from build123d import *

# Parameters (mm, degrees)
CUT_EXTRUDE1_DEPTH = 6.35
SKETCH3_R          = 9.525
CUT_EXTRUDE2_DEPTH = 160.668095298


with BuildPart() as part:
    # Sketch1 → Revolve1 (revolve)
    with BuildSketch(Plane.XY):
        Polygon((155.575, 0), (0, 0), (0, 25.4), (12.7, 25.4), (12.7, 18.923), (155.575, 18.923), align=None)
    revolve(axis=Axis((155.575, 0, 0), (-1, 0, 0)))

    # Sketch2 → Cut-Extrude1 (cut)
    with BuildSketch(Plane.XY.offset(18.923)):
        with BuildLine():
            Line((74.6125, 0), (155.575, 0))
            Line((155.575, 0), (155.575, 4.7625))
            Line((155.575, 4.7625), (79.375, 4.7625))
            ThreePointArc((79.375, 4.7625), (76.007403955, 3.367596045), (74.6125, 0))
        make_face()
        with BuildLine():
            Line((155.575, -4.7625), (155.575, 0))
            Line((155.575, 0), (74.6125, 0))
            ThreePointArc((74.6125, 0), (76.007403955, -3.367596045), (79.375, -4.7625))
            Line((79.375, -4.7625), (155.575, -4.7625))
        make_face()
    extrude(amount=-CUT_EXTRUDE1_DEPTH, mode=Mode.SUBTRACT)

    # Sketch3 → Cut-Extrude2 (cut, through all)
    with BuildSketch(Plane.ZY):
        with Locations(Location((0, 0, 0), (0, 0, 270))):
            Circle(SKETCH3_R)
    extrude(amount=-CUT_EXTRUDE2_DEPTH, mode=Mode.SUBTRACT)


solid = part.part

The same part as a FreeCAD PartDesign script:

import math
import FreeCAD as App
import Part
import Sketcher

V = App.Vector
Q = App.Units.Quantity


def add_polygon(sketch, points):
    """Adds a closed chain of lines whose ends are joined by coincident constraints."""
    first, n = sketch.GeometryCount, len(points)
    for a, b in zip(points, points[1:] + points[:1]):
        sketch.addGeometry(Part.LineSegment(App.Vector(*a, 0), App.Vector(*b, 0)), False)
    for i in range(n):
        sketch.addConstraint(Sketcher.Constraint("Coincident", first + i, 2, first + (i + 1) % n, 1))

doc = App.newDocument("Part")
body = doc.addObject("PartDesign::Body", "Body")

# Sketch on XY plane
sketch1 = body.newObject("Sketcher::SketchObject", "Sketch")
sketch1.AttachmentSupport = (doc.getObject("XY_Plane"), [""])
sketch1.MapMode = "FlatFace"
add_polygon(sketch1, [(0, 0), (156, 0), (156, 19), (13, 19), (13, 25), (0, 25)])  # lines 0-5
sketch1.addConstraint([
    Sketcher.Constraint("Horizontal", 0),
    Sketcher.Constraint("Vertical", 1),
    Sketcher.Constraint("Horizontal", 2),
    Sketcher.Constraint("Vertical", 3),
    Sketcher.Constraint("Horizontal", 4),
    Sketcher.Constraint("Vertical", 5),
    Sketcher.Constraint("Coincident", 5, 2, -1, 1),
    Sketcher.Constraint("DistanceY", 5, 2, 5, 1, Q("1 in")),
    Sketcher.Constraint("DistanceX", 4, 2, 4, 1, Q("0.5 in")),
    Sketcher.Constraint("DistanceX", 0, 1, 0, 2, Q("6.125 in")),
    Sketcher.Constraint("DistanceY", 1, 1, 1, 2, Q("0.745 in")),
])
revolution = body.newObject("PartDesign::Revolution", "Revolution")
revolution.Profile = sketch1
revolution.ReferenceAxis = (sketch1, ["H_Axis"])
revolution.Angle = 360

# Sketch on XY plane
sketch2 = body.newObject("Sketcher::SketchObject", "Sketch001")
sketch2.AttachmentSupport = (doc.getObject("XY_Plane"), [""])
sketch2.MapMode = "FlatFace"
sketch2.AttachmentOffset = App.Placement(V(0, 0, 0.745 * 25.4), App.Rotation())
sketch2.addGeometry([
    Part.LineSegment(V(155.6, 4.8, 0), V(79.4, 4.8, 0)),  # 0
    Part.ArcOfCircle(Part.Circle(V(79.4, 0, 0), V(0, 0, 1), 4.8), math.radians(90), math.radians(180)),  # 1
    Part.ArcOfCircle(Part.Circle(V(79.4, 0, 0), V(0, 0, 1), 4.8), math.radians(-180), math.radians(-90)),  # 2
    Part.LineSegment(V(79.4, -4.8, 0), V(155.6, -4.8, 0)),  # 3
    Part.LineSegment(V(155.6, -4.8, 0), V(155.6, 4.8, 0)),  # 4
], False)
sketch2.addConstraint([
    Sketcher.Constraint("Tangent", 0, 2, 1, 1),
    Sketcher.Constraint("Tangent", 1, 2, 2, 1),
    Sketcher.Constraint("Tangent", 2, 2, 3, 1),
    Sketcher.Constraint("Coincident", 3, 2, 4, 1),
    Sketcher.Constraint("Coincident", 4, 2, 0, 1),
    Sketcher.Constraint("Horizontal", 0),
    Sketcher.Constraint("Horizontal", 3),
    Sketcher.Constraint("Vertical", 4),
    Sketcher.Constraint("Equal", 1, 2),
    Sketcher.Constraint("PointOnObject", 1, 3, -1),
    Sketcher.Constraint("PointOnObject", 1, 2, -1),
    Sketcher.Constraint("DistanceX", 0, 2, 0, 1, Q("3 in")),
    Sketcher.Constraint("Radius", 1, Q("0.1875 in")),
    Sketcher.Constraint("DistanceX", -1, 1, 1, 3, Q("3.125 in")),
])
pocket1 = body.newObject("PartDesign::Pocket", "Pocket")
pocket1.Profile = sketch2
pocket1.Length = Q("0.25 in")

# Sketch on YZ plane
sketch3 = body.newObject("Sketcher::SketchObject", "Sketch002")
sketch3.AttachmentSupport = (doc.getObject("YZ_Plane"), [""])
sketch3.MapMode = "FlatFace"
sketch3.addGeometry(Part.Circle(V(0, 0, 0), V(0, 0, 1), 10), False)
sketch3.addConstraint([
    Sketcher.Constraint("Coincident", 0, 3, -1, 1),
    Sketcher.Constraint("Diameter", 0, Q("0.75 in")),
])
pocket2 = body.newObject("PartDesign::Pocket", "Pocket001")
pocket2.Profile = sketch3
pocket2.Type = "ThroughAll"
pocket2.Reversed = True

doc.recompute()
